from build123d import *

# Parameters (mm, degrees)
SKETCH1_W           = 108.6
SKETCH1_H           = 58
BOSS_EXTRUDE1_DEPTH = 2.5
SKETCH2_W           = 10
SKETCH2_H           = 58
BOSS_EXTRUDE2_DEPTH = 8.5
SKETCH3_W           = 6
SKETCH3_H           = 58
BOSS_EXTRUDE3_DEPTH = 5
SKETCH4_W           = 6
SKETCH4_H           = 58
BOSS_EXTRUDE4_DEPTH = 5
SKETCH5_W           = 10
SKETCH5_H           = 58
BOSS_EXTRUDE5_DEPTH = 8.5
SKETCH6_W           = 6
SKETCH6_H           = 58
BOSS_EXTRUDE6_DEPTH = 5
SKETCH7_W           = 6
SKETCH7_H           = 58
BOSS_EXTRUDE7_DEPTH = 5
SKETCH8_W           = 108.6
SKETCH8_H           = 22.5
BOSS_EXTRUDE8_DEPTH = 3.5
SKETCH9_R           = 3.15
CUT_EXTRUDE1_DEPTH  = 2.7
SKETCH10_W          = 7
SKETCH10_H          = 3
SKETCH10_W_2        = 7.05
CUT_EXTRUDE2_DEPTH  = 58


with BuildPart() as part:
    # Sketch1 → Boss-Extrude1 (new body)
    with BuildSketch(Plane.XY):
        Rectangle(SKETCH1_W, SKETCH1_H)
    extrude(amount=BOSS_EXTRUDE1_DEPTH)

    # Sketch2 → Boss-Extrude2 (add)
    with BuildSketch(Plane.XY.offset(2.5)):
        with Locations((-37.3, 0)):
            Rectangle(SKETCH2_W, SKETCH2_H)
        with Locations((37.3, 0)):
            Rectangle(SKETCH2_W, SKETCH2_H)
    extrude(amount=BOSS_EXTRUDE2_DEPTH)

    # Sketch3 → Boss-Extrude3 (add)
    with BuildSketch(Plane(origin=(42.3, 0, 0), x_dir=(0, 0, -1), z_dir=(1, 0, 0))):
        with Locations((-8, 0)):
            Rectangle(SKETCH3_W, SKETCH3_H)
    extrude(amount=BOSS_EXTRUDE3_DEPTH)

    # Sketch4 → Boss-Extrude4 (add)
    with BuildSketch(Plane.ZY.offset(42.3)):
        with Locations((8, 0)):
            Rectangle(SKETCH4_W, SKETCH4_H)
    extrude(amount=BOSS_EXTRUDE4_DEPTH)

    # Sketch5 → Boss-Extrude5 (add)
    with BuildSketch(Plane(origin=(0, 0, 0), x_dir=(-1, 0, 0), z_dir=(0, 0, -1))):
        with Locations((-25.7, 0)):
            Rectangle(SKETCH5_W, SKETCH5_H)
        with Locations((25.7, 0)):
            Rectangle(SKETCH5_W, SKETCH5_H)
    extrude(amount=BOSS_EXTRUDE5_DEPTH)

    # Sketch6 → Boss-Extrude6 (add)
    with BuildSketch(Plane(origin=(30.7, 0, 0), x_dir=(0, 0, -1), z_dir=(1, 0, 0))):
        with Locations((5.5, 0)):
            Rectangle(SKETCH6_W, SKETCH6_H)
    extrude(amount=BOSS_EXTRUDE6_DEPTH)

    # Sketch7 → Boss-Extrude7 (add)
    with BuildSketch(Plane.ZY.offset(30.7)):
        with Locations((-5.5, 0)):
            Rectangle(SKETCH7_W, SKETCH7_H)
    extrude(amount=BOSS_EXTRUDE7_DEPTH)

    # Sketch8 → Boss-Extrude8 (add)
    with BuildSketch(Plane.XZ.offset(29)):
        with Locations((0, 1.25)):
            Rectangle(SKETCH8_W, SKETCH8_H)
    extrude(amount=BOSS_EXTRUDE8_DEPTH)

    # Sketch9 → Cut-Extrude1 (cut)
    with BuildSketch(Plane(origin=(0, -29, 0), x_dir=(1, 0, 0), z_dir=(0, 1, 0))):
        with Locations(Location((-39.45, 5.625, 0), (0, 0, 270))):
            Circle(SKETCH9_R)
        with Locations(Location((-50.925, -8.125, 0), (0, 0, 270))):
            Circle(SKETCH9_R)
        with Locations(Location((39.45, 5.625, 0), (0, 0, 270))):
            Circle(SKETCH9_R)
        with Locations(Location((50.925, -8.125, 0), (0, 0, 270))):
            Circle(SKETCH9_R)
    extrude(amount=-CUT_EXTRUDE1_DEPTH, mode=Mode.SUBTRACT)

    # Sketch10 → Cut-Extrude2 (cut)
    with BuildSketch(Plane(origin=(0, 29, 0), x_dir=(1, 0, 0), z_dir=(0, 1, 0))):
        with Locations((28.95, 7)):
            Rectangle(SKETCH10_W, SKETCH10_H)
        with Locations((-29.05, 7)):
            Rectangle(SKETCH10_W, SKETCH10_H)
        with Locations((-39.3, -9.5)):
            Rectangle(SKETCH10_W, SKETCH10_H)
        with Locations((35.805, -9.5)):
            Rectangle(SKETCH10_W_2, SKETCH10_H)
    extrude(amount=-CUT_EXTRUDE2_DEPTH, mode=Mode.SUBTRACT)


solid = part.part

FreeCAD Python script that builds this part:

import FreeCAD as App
import Part
import Sketcher
from FreeCAD import Vector


def add_polygon(sketch, points):
    """Adds a closed chain of lines whose ends are joined by coincident constraints."""
    first, n = sketch.GeometryCount, len(points)
    for a, b in zip(points, points[1:] + points[:1]):
        sketch.addGeometry(Part.LineSegment(App.Vector(*a, 0), App.Vector(*b, 0)), False)
    for i in range(n):
        sketch.addConstraint(Sketcher.Constraint("Coincident", first + i, 2, first + (i + 1) % n, 1))

doc = App.newDocument("Part")
params = doc.addObject("Spreadsheet::Sheet", "Params")
for row, (alias, value) in enumerate([
    ("sketch1_height", "58 mm"),
    ("sketch1_width", "108.6 mm"),
    ("pad1_length", "2.5 mm"),
    ("sketch2_width", "10 mm"),
    ("sketch2_height", "58 mm"),
    ("pad2_length", "8.5 mm"),
    ("sketch3_width", "58 mm"),
    ("sketch3_height", "6 mm"),
    ("pad3_length", "5 mm"),
    ("sketch4_width", "58 mm"),
    ("sketch4_height", "6 mm"),
    ("pad4_length", "5 mm"),
    ("sketch5_width", "10 mm"),
    ("sketch5_height", "58 mm"),
    ("pad5_length", "8.5 mm"),
    ("sketch6_width", "58 mm"),
    ("sketch6_height", "6 mm"),
    ("pad6_length", "5 mm"),
    ("sketch7_width", "58 mm"),
    ("sketch7_height", "6 mm"),
    ("pad7_length", "5 mm"),
    ("sketch8_width", "108.6 mm"),
    ("sketch8_height", "22.5 mm"),
    ("pad8_length", "3.5 mm"),
    ("sketch9_diameter", "6.3 mm"),
    ("pocket1_length", "2.7 mm"),
    ("sketch10_width", "7 mm"),
    ("sketch10_height", "3 mm"),
    ("sketch10_width2", "7.05 mm"),
    ("pocket2_length", "58 mm"),
], start=1):
    params.set(f"A{row}", alias)
    params.set(f"B{row}", "=" + value)
    params.setAlias(f"B{row}", alias)

body = doc.addObject("PartDesign::Body", "Body")

sketch1 = doc.addObject("Sketcher::SketchObject", "Sketch")
body.addObject(sketch1)
sketch1.AttachmentSupport = (doc.XY_Plane, [""])
sketch1.MapMode = "FlatFace"
add_polygon(sketch1, [(-54, 29), (-54, -29), (54, -29), (54, 29)])
sketch1.addConstraint(Sketcher.Constraint("Vertical", 0))
sketch1.addConstraint(Sketcher.Constraint("Horizontal", 1))
sketch1.addConstraint(Sketcher.Constraint("Vertical", 2))
sketch1.addConstraint(Sketcher.Constraint("Horizontal", 3))
sketch1.addConstraint(Sketcher.Constraint("Symmetric", 0, 2, 2, 2, -1, 1))
sketch1.addConstraint(Sketcher.Constraint("DistanceY", 0, 2, 0, 1, 58.0))
sketch1.addConstraint(Sketcher.Constraint("DistanceX", 1, 1, 1, 2, 108.6))
sketch1.setExpression("Constraints[9]", "Params.sketch1_height")
sketch1.setExpression("Constraints[10]", "Params.sketch1_width")
pad1 = doc.addObject("PartDesign::Pad", "Pad")
body.addObject(pad1)
pad1.Profile = sketch1
pad1.setExpression("Length", "Params.pad1_length")

sketch2 = doc.addObject("Sketcher::SketchObject", "Sketch001")
body.addObject(sketch2)
sketch2.AttachmentSupport = (doc.XY_Plane, [""])
sketch2.MapMode = "FlatFace"
sketch2.AttachmentOffset = App.Placement(Vector(0, 0, 2.5), App.Rotation())
add_polygon(sketch2, [(-42, 29), (-42, -29), (-32, -29), (-32, 29)])
add_polygon(sketch2, [(32, 29), (32, -29), (42, -29), (42, 29)])
sketch2.addConstraint(Sketcher.Constraint("Vertical", 0))
sketch2.addConstraint(Sketcher.Constraint("Horizontal", 1))
sketch2.addConstraint(Sketcher.Constraint("Vertical", 2))
sketch2.addConstraint(Sketcher.Constraint("Horizontal", 3))
sketch2.addConstraint(Sketcher.Constraint("Vertical", 4))
sketch2.addConstraint(Sketcher.Constraint("Horizontal", 5))
sketch2.addConstraint(Sketcher.Constraint("Vertical", 6))
sketch2.addConstraint(Sketcher.Constraint("Horizontal", 7))
sketch2.addConstraint(Sketcher.Constraint("Symmetric", 2, 2, 4, 2, -1, 1))
sketch2.addConstraint(Sketcher.Constraint("Symmetric", 0, 2, 6, 2, -1, 1))
sketch2.addConstraint(Sketcher.Constraint("Horizontal", 1, 2, 4, 2))
sketch2.addConstraint(Sketcher.Constraint("DistanceX", 1, 1, 1, 2, 10.0))
sketch2.addConstraint(Sketcher.Constraint("DistanceY", 0, 2, 0, 1, 58.0))
sketch2.addConstraint(Sketcher.Constraint("DistanceX", 0, 2, -1, 1, 42.3))
sketch2.setExpression("Constraints[19]", "Params.sketch2_width")
sketch2.setExpression("Constraints[20]", "Params.sketch2_height")
pad2 = doc.addObject("PartDesign::Pad", "Pad001")
body.addObject(pad2)
pad2.Profile = sketch2
pad2.setExpression("Length", "Params.pad2_length")

sketch3 = doc.addObject("Sketcher::SketchObject", "Sketch002")
body.addObject(sketch3)
sketch3.AttachmentSupport = (doc.YZ_Plane, [""])
sketch3.MapMode = "FlatFace"
sketch3.AttachmentOffset = App.Placement(Vector(0, 0, 42.3), App.Rotation())
add_polygon(sketch3, [(29, 11), (-29, 11), (-29, 5), (29, 5)])
sketch3.addConstraint(Sketcher.Constraint("Horizontal", 0))
sketch3.addConstraint(Sketcher.Constraint("Vertical", 1))
sketch3.addConstraint(Sketcher.Constraint("Horizontal", 2))
sketch3.addConstraint(Sketcher.Constraint("Vertical", 3))
sketch3.addConstraint(Sketcher.Constraint("DistanceX", 0, 2, 0, 1, 58.0))
sketch3.addConstraint(Sketcher.Constraint("DistanceY", 1, 2, 1, 1, 6.0))
sketch3.addConstraint(Sketcher.Constraint("DistanceX", 0, 2, -1, 1, 29.0))
sketch3.addConstraint(Sketcher.Constraint("DistanceY", -1, 1, 0, 2, 11.0))
sketch3.setExpression("Constraints[8]", "Params.sketch3_width")
sketch3.setExpression("Constraints[9]", "Params.sketch3_height")
pad3 = doc.addObject("PartDesign::Pad", "Pad002")
body.addObject(pad3)
pad3.Profile = sketch3
pad3.setExpression("Length", "Params.pad3_length")

sketch4 = doc.addObject("Sketcher::SketchObject", "Sketch003")
body.addObject(sketch4)
sketch4.AttachmentSupport = (doc.YZ_Plane, [""])
sketch4.MapMode = "FlatFace"
sketch4.AttachmentOffset = App.Placement(Vector(0, 0, -42.3), App.Rotation())
add_polygon(sketch4, [(29, 5), (-29, 5), (-29, 11), (29, 11)])
sketch4.addConstraint(Sketcher.Constraint("Horizontal", 0))
sketch4.addConstraint(Sketcher.Constraint("Vertical", 1))
sketch4.addConstraint(Sketcher.Constraint("Horizontal", 2))
sketch4.addConstraint(Sketcher.Constraint("Vertical", 3))
sketch4.addConstraint(Sketcher.Constraint("DistanceX", 0, 2, 0, 1, 58.0))
sketch4.addConstraint(Sketcher.Constraint("DistanceY", 1, 1, 1, 2, 6.0))
sketch4.addConstraint(Sketcher.Constraint("DistanceX", 0, 2, -1, 1, 29.0))
sketch4.addConstraint(Sketcher.Constraint("DistanceY", -1, 1, 0, 2, 5.0))
sketch4.setExpression("Constraints[8]", "Params.sketch4_width")
sketch4.setExpression("Constraints[9]", "Params.sketch4_height")
pad4 = doc.addObject("PartDesign::Pad", "Pad003")
body.addObject(pad4)
pad4.Profile = sketch4
pad4.setExpression("Length", "Params.pad4_length")
pad4.Reversed = True

sketch5 = doc.addObject("Sketcher::SketchObject", "Sketch004")
body.addObject(sketch5)
sketch5.AttachmentSupport = (doc.XY_Plane, [""])
sketch5.MapMode = "FlatFace"
add_polygon(sketch5, [(31, 29), (31, -29), (21, -29), (21, 29)])
add_polygon(sketch5, [(-21, 29), (-21, -29), (-31, -29), (-31, 29)])
sketch5.addConstraint(Sketcher.Constraint("Vertical", 0))
sketch5.addConstraint(Sketcher.Constraint("Horizontal", 1))
sketch5.addConstraint(Sketcher.Constraint("Vertical", 2))
sketch5.addConstraint(Sketcher.Constraint("Horizontal", 3))
sketch5.addConstraint(Sketcher.Constraint("Vertical", 4))
sketch5.addConstraint(Sketcher.Constraint("Horizontal", 5))
sketch5.addConstraint(Sketcher.Constraint("Vertical", 6))
sketch5.addConstraint(Sketcher.Constraint("Horizontal", 7))
sketch5.addConstraint(Sketcher.Constraint("Symmetric", 2, 2, 4, 2, -1, 1))
sketch5.addConstraint(Sketcher.Constraint("Symmetric", 0, 2, 6, 2, -1, 1))
sketch5.addConstraint(Sketcher.Constraint("Horizontal", 1, 2, 4, 2))
sketch5.addConstraint(Sketcher.Constraint("DistanceX", 1, 2, 1, 1, 10.0))
sketch5.addConstraint(Sketcher.Constraint("DistanceY", 0, 2, 0, 1, 58.0))
sketch5.addConstraint(Sketcher.Constraint("DistanceX", -1, 1, 0, 2, 30.7))
sketch5.setExpression("Constraints[19]", "Params.sketch5_width")
sketch5.setExpression("Constraints[20]", "Params.sketch5_height")
pad5 = doc.addObject("PartDesign::Pad", "Pad004")
body.addObject(pad5)
pad5.Profile = sketch5
pad5.setExpression("Length", "Params.pad5_length")
pad5.Reversed = True

sketch6 = doc.addObject("Sketcher::SketchObject", "Sketch005")
body.addObject(sketch6)
sketch6.AttachmentSupport = (doc.YZ_Plane, [""])
sketch6.MapMode = "FlatFace"
sketch6.AttachmentOffset = App.Placement(Vector(0, 0, 30.7), App.Rotation())
add_polygon(sketch6, [(29, -2), (-29, -2), (-29, -8), (29, -8)])
sketch6.addConstraint(Sketcher.Constraint("Horizontal", 0))
sketch6.addConstraint(Sketcher.Constraint("Vertical", 1))
sketch6.addConstraint(Sketcher.Constraint("Horizontal", 2))
sketch6.addConstraint(Sketcher.Constraint("Vertical", 3))
sketch6.addConstraint(Sketcher.Constraint("DistanceX", 0, 2, 0, 1, 58.0))
sketch6.addConstraint(Sketcher.Constraint("DistanceY", 1, 2, 1, 1, 6.0))
sketch6.addConstraint(Sketcher.Constraint("DistanceX", 0, 2, -1, 1, 29.0))
sketch6.addConstraint(Sketcher.Constraint("DistanceY", 0, 2, -1, 1, 2.5))
sketch6.setExpression("Constraints[8]", "Params.sketch6_width")
sketch6.setExpression("Constraints[9]", "Params.sketch6_height")
pad6 = doc.addObject("PartDesign::Pad", "Pad005")
body.addObject(pad6)
pad6.Profile = sketch6
pad6.setExpression("Length", "Params.pad6_length")

sketch7 = doc.addObject("Sketcher::SketchObject", "Sketch006")
body.addObject(sketch7)
sketch7.AttachmentSupport = (doc.YZ_Plane, [""])
sketch7.MapMode = "FlatFace"
sketch7.AttachmentOffset = App.Placement(Vector(0, 0, -30.7), App.Rotation())
add_polygon(sketch7, [(29, -8), (-29, -8), (-29, -2), (29, -2)])
sketch7.addConstraint(Sketcher.Constraint("Horizontal", 0))
sketch7.addConstraint(Sketcher.Constraint("Vertical", 1))
sketch7.addConstraint(Sketcher.Constraint("Horizontal", 2))
sketch7.addConstraint(Sketcher.Constraint("Vertical", 3))
sketch7.addConstraint(Sketcher.Constraint("DistanceX", 0, 2, 0, 1, 58.0))
sketch7.addConstraint(Sketcher.Constraint("DistanceY", 1, 1, 1, 2, 6.0))
sketch7.addConstraint(Sketcher.Constraint("DistanceX", 0, 2, -1, 1, 29.0))
sketch7.addConstraint(Sketcher.Constraint("DistanceY", 0, 2, -1, 1, 8.5))
sketch7.setExpression("Constraints[8]", "Params.sketch7_width")
sketch7.setExpression("Constraints[9]", "Params.sketch7_height")
pad7 = doc.addObject("PartDesign::Pad", "Pad006")
body.addObject(pad7)
pad7.Profile = sketch7
pad7.setExpression("Length", "Params.pad7_length")
pad7.Reversed = True

sketch8 = doc.addObject("Sketcher::SketchObject", "Sketch007")
body.addObject(sketch8)
sketch8.AttachmentSupport = (doc.XZ_Plane, [""])
sketch8.MapMode = "FlatFace"
sketch8.AttachmentOffset = App.Placement(Vector(0, 0, 29), App.Rotation())
add_polygon(sketch8, [(-54, 12), (-54, -10), (54, -10), (54, 12)])
sketch8.addConstraint(Sketcher.Constraint("Vertical", 0))
sketch8.addConstraint(Sketcher.Constraint("Horizontal", 1))
sketch8.addConstraint(Sketcher.Constraint("Vertical", 2))
sketch8.addConstraint(Sketcher.Constraint("Horizontal", 3))
sketch8.addConstraint(Sketcher.Constraint("DistanceX", 1, 1, 1, 2, 108.6))
sketch8.addConstraint(Sketcher.Constraint("DistanceY", 0, 2, 0, 1, 22.5))
sketch8.addConstraint(Sketcher.Constraint("DistanceY", 0, 2, -1, 1, 10.0))
sketch8.addConstraint(Sketcher.Constraint("DistanceX", 0, 2, -1, 1, 54.3))
sketch8.setExpression("Constraints[8]", "Params.sketch8_width")
sketch8.setExpression("Constraints[9]", "Params.sketch8_height")
pad8 = doc.addObject("PartDesign::Pad", "Pad007")
body.addObject(pad8)
pad8.Profile = sketch8
pad8.setExpression("Length", "Params.pad8_length")

sketch9 = doc.addObject("Sketcher::SketchObject", "Sketch008")
body.addObject(sketch9)
sketch9.AttachmentSupport = (doc.XZ_Plane, [""])
sketch9.MapMode = "FlatFace"
sketch9.AttachmentOffset = App.Placement(Vector(0, 0, 29), App.Rotation())
sketch9.addGeometry(Part.Circle(Vector(-39.5, -5.6, 0), Vector(0, 0, 1), 3.1), False)
sketch9.addGeometry(Part.Circle(Vector(-50.9, 8.1, 0), Vector(0, 0, 1), 3.1), False)
sketch9.addGeometry(Part.Circle(Vector(39.5, -5.6, 0), Vector(0, 0, 1), 3.1), False)
sketch9.addGeometry(Part.Circle(Vector(50.9, 8.1, 0), Vector(0, 0, 1), 3.1), False)
sketch9.addConstraint(Sketcher.Constraint("Equal", 0, 1))
sketch9.addConstraint(Sketcher.Constraint("Equal", 1, 2))
sketch9.addConstraint(Sketcher.Constraint("Equal", 2, 3))
sketch9.addConstraint(Sketcher.Constraint("Symmetric", 0, 3, 2, 3, -2))
sketch9.addConstraint(Sketcher.Constraint("Symmetric", 1, 3, 3, 3, -2))
sketch9.addConstraint(Sketcher.Constraint("Diameter", 0, 6.3))
sketch9.addConstraint(Sketcher.Constraint("DistanceX", 0, 3, 2, 3, 78.9))
sketch9.addConstraint(Sketcher.Constraint("DistanceY", 0, 3, 1, 3, 13.75))
sketch9.addConstraint(Sketcher.Constraint("DistanceX", 1, 3, 3, 3, 101.85))
sketch9.addConstraint(Sketcher.Constraint("DistanceY", 0, 3, -1, 1, 5.625))
sketch9.setExpression("Constraints[5]", "Params.sketch9_diameter")
pocket1 = doc.addObject("PartDesign::Pocket", "Pocket")
body.addObject(pocket1)
pocket1.Profile = sketch9
pocket1.setExpression("Length", "Params.pocket1_length")
pocket1.Reversed = True

sketch10 = doc.addObject("Sketcher::SketchObject", "Sketch009")
body.addObject(sketch10)
sketch10.AttachmentSupport = (doc.XZ_Plane, [""])
sketch10.MapMode = "FlatFace"
sketch10.AttachmentOffset = App.Placement(Vector(0, 0, -29), App.Rotation())
add_polygon(sketch10, [(25.4, -8.5), (25.4, -5.5), (32.5, -5.5), (32.5, -8.5)])
add_polygon(sketch10, [(-32.5, -8.5), (-32.5, -5.5), (-25.6, -5.5), (-25.6, -8.5)])
add_polygon(sketch10, [(-42.8, 8), (-42.8, 11), (-35.8, 11), (-35.8, 8)])
add_polygon(sketch10, [(32.3, 8), (32.3, 11), (39.3, 11), (39.3, 8)])
sketch10.addConstraint(Sketcher.Constraint("Vertical", 0))
sketch10.addConstraint(Sketcher.Constraint("Horizontal", 1))
sketch10.addConstraint(Sketcher.Constraint("Vertical", 2))
sketch10.addConstraint(Sketcher.Constraint("Horizontal", 3))
sketch10.addConstraint(Sketcher.Constraint("Vertical", 4))
sketch10.addConstraint(Sketcher.Constraint("Horizontal", 5))
sketch10.addConstraint(Sketcher.Constraint("Vertical", 6))
sketch10.addConstraint(Sketcher.Constraint("Horizontal", 7))
sketch10.addConstraint(Sketcher.Constraint("Vertical", 8))
sketch10.addConstraint(Sketcher.Constraint("Horizontal", 9))
sketch10.addConstraint(Sketcher.Constraint("Vertical", 10))
sketch10.addConstraint(Sketcher.Constraint("Horizontal", 11))
sketch10.addConstraint(Sketcher.Constraint("Vertical", 12))
sketch10.addConstraint(Sketcher.Constraint("Horizontal", 13))
sketch10.addConstraint(Sketcher.Constraint("Vertical", 14))
sketch10.addConstraint(Sketcher.Constraint("Horizontal", 15))
sketch10.addConstraint(Sketcher.Constraint("Horizontal", 1, 2, 4, 2))
sketch10.addConstraint(Sketcher.Constraint("Horizontal", 3, 2, 6, 2))
sketch10.addConstraint(Sketcher.Constraint("Horizontal", 9, 2, 12, 2))
sketch10.addConstraint(Sketcher.Constraint("Horizontal", 11, 2, 14, 2))
sketch10.addConstraint(Sketcher.Constraint("Equal", 3, 5))
sketch10.addConstraint(Sketcher.Constraint("Equal", 7, 9))
sketch10.addConstraint(Sketcher.Constraint("Equal", 6, 8))
sketch10.addConstraint(Sketcher.Constraint("DistanceX", 1, 1, 1, 2, 7.0))
sketch10.addConstraint(Sketcher.Constraint("DistanceY", 0, 1, 0, 2, 3.0))
sketch10.addConstraint(Sketcher.Constraint("DistanceY", -1, 1, 8, 2, 11.0))
sketch10.addConstraint(Sketcher.Constraint("DistanceX", 4, 2, 0, 2, 58.0))
sketch10.addConstraint(Sketcher.Constraint("DistanceX", 13, 1, 13, 2, 7.05))
sketch10.addConstraint(Sketcher.Constraint("DistanceY", 0, 2, -1, 1, 5.5))
sketch10.addConstraint(Sketcher.Constraint("DistanceX", 8, 2, -1, 1, 42.8))
sketch10.addConstraint(Sketcher.Constraint("DistanceX", -1, 1, 0, 2, 25.45))
sketch10.addConstraint(Sketcher.Constraint("DistanceX", -1, 1, 12, 2, 32.28))
sketch10.setExpression("Constraints[39]", "Params.sketch10_width")
sketch10.setExpression("Constraints[40]", "Params.sketch10_height")
sketch10.setExpression("Constraints[43]", "Params.sketch10_width2")
pocket2 = doc.addObject("PartDesign::Pocket", "Pocket001")
body.addObject(pocket2)
pocket2.Profile = sketch10
pocket2.setExpression("Length", "Params.pocket2_length")
pocket2.Reversed = True

doc.recompute()
